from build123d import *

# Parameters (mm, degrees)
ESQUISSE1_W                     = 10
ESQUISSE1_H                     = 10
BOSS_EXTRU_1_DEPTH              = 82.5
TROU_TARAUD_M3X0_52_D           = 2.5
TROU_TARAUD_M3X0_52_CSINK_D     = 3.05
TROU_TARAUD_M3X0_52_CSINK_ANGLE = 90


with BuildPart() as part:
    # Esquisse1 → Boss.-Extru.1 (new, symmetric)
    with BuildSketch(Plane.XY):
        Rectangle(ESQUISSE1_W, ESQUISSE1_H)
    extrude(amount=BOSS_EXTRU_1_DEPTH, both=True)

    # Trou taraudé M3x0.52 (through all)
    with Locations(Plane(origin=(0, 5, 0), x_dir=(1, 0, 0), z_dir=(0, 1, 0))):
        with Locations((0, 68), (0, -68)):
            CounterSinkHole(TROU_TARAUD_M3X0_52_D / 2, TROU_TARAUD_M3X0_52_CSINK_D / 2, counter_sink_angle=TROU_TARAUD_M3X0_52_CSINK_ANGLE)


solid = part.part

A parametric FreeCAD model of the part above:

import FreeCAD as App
import Part
import Sketcher
from FreeCAD import Vector

doc = App.newDocument("Part")
body = doc.addObject("PartDesign::Body", "Body")

# Sketch on XY plane
sketch1 = doc.addObject("Sketcher::SketchObject", "Sketch")
body.addObject(sketch1)
sketch1.AttachmentSupport = (doc.XY_Plane, [""])
sketch1.MapMode = "FlatFace"
sketch1.addGeometry(Part.LineSegment(Vector(-5, 5, 0), Vector(-5, -5, 0)), False)
sketch1.addGeometry(Part.LineSegment(Vector(-5, -5, 0), Vector(5, -5, 0)), False)
sketch1.addGeometry(Part.LineSegment(Vector(5, -5, 0), Vector(5, 5, 0)), False)
sketch1.addGeometry(Part.LineSegment(Vector(5, 5, 0), Vector(-5, 5, 0)), False)
sketch1.addConstraint(Sketcher.Constraint("Coincident", 0, 2, 1, 1))
sketch1.addConstraint(Sketcher.Constraint("Coincident", 1, 2, 2, 1))
sketch1.addConstraint(Sketcher.Constraint("Coincident", 2, 2, 3, 1))
sketch1.addConstraint(Sketcher.Constraint("Coincident", 3, 2, 0, 1))
sketch1.addConstraint(Sketcher.Constraint("Vertical", 0))
sketch1.addConstraint(Sketcher.Constraint("Horizontal", 1))
sketch1.addConstraint(Sketcher.Constraint("Vertical", 2))
sketch1.addConstraint(Sketcher.Constraint("Horizontal", 3))
sketch1.addConstraint(Sketcher.Constraint("Symmetric", 0, 2, 2, 2, -1, 1))
sketch1.addConstraint(Sketcher.Constraint("Equal", 3, 0))
sketch1.addConstraint(Sketcher.Constraint("DistanceX", 1, 1, 1, 2, 10.0))
pad1 = doc.addObject("PartDesign::Pad", "Pad")
body.addObject(pad1)
pad1.Profile = sketch1
pad1.Length = 165
pad1.Midplane = True

# Sketch on XZ plane
sketch2 = doc.addObject("Sketcher::SketchObject", "Sketch001")
body.addObject(sketch2)
sketch2.AttachmentSupport = (doc.XZ_Plane, [""])
sketch2.MapMode = "FlatFace"
sketch2.AttachmentOffset = App.Placement(Vector(0, 0, -5), App.Rotation())
sketch2.addGeometry(Part.Circle(Vector(0, -68, 0), Vector(0, 0, 1), 1.2), False)
sketch2.addGeometry(Part.Circle(Vector(0, 68, 0), Vector(0, 0, 1), 1.2), False)
sketch2.addConstraint(Sketcher.Constraint("Equal", 0, 1))
sketch2.addConstraint(Sketcher.Constraint("Symmetric", 0, 3, 1, 3, -1, 1))
sketch2.addConstraint(Sketcher.Constraint("PointOnObject", 0, 3, -2))
sketch2.addConstraint(Sketcher.Constraint("Diameter", 0, 2.5))
sketch2.addConstraint(Sketcher.Constraint("DistanceY", 0, 3, -1, 1, 68.0))
doc.recompute()
hole = doc.addObject("PartDesign::Hole", "Hole")
body.addObject(hole)
hole.Profile = sketch2
hole.ThreadType = "None"
hole.Diameter = 2.5
hole.DepthType = "ThroughAll"
hole.HoleCutType = "Countersink"
hole.HoleCutDiameter = 3.05
hole.HoleCutCountersinkAngle = 90
hole.Reversed = True

doc.recompute()
